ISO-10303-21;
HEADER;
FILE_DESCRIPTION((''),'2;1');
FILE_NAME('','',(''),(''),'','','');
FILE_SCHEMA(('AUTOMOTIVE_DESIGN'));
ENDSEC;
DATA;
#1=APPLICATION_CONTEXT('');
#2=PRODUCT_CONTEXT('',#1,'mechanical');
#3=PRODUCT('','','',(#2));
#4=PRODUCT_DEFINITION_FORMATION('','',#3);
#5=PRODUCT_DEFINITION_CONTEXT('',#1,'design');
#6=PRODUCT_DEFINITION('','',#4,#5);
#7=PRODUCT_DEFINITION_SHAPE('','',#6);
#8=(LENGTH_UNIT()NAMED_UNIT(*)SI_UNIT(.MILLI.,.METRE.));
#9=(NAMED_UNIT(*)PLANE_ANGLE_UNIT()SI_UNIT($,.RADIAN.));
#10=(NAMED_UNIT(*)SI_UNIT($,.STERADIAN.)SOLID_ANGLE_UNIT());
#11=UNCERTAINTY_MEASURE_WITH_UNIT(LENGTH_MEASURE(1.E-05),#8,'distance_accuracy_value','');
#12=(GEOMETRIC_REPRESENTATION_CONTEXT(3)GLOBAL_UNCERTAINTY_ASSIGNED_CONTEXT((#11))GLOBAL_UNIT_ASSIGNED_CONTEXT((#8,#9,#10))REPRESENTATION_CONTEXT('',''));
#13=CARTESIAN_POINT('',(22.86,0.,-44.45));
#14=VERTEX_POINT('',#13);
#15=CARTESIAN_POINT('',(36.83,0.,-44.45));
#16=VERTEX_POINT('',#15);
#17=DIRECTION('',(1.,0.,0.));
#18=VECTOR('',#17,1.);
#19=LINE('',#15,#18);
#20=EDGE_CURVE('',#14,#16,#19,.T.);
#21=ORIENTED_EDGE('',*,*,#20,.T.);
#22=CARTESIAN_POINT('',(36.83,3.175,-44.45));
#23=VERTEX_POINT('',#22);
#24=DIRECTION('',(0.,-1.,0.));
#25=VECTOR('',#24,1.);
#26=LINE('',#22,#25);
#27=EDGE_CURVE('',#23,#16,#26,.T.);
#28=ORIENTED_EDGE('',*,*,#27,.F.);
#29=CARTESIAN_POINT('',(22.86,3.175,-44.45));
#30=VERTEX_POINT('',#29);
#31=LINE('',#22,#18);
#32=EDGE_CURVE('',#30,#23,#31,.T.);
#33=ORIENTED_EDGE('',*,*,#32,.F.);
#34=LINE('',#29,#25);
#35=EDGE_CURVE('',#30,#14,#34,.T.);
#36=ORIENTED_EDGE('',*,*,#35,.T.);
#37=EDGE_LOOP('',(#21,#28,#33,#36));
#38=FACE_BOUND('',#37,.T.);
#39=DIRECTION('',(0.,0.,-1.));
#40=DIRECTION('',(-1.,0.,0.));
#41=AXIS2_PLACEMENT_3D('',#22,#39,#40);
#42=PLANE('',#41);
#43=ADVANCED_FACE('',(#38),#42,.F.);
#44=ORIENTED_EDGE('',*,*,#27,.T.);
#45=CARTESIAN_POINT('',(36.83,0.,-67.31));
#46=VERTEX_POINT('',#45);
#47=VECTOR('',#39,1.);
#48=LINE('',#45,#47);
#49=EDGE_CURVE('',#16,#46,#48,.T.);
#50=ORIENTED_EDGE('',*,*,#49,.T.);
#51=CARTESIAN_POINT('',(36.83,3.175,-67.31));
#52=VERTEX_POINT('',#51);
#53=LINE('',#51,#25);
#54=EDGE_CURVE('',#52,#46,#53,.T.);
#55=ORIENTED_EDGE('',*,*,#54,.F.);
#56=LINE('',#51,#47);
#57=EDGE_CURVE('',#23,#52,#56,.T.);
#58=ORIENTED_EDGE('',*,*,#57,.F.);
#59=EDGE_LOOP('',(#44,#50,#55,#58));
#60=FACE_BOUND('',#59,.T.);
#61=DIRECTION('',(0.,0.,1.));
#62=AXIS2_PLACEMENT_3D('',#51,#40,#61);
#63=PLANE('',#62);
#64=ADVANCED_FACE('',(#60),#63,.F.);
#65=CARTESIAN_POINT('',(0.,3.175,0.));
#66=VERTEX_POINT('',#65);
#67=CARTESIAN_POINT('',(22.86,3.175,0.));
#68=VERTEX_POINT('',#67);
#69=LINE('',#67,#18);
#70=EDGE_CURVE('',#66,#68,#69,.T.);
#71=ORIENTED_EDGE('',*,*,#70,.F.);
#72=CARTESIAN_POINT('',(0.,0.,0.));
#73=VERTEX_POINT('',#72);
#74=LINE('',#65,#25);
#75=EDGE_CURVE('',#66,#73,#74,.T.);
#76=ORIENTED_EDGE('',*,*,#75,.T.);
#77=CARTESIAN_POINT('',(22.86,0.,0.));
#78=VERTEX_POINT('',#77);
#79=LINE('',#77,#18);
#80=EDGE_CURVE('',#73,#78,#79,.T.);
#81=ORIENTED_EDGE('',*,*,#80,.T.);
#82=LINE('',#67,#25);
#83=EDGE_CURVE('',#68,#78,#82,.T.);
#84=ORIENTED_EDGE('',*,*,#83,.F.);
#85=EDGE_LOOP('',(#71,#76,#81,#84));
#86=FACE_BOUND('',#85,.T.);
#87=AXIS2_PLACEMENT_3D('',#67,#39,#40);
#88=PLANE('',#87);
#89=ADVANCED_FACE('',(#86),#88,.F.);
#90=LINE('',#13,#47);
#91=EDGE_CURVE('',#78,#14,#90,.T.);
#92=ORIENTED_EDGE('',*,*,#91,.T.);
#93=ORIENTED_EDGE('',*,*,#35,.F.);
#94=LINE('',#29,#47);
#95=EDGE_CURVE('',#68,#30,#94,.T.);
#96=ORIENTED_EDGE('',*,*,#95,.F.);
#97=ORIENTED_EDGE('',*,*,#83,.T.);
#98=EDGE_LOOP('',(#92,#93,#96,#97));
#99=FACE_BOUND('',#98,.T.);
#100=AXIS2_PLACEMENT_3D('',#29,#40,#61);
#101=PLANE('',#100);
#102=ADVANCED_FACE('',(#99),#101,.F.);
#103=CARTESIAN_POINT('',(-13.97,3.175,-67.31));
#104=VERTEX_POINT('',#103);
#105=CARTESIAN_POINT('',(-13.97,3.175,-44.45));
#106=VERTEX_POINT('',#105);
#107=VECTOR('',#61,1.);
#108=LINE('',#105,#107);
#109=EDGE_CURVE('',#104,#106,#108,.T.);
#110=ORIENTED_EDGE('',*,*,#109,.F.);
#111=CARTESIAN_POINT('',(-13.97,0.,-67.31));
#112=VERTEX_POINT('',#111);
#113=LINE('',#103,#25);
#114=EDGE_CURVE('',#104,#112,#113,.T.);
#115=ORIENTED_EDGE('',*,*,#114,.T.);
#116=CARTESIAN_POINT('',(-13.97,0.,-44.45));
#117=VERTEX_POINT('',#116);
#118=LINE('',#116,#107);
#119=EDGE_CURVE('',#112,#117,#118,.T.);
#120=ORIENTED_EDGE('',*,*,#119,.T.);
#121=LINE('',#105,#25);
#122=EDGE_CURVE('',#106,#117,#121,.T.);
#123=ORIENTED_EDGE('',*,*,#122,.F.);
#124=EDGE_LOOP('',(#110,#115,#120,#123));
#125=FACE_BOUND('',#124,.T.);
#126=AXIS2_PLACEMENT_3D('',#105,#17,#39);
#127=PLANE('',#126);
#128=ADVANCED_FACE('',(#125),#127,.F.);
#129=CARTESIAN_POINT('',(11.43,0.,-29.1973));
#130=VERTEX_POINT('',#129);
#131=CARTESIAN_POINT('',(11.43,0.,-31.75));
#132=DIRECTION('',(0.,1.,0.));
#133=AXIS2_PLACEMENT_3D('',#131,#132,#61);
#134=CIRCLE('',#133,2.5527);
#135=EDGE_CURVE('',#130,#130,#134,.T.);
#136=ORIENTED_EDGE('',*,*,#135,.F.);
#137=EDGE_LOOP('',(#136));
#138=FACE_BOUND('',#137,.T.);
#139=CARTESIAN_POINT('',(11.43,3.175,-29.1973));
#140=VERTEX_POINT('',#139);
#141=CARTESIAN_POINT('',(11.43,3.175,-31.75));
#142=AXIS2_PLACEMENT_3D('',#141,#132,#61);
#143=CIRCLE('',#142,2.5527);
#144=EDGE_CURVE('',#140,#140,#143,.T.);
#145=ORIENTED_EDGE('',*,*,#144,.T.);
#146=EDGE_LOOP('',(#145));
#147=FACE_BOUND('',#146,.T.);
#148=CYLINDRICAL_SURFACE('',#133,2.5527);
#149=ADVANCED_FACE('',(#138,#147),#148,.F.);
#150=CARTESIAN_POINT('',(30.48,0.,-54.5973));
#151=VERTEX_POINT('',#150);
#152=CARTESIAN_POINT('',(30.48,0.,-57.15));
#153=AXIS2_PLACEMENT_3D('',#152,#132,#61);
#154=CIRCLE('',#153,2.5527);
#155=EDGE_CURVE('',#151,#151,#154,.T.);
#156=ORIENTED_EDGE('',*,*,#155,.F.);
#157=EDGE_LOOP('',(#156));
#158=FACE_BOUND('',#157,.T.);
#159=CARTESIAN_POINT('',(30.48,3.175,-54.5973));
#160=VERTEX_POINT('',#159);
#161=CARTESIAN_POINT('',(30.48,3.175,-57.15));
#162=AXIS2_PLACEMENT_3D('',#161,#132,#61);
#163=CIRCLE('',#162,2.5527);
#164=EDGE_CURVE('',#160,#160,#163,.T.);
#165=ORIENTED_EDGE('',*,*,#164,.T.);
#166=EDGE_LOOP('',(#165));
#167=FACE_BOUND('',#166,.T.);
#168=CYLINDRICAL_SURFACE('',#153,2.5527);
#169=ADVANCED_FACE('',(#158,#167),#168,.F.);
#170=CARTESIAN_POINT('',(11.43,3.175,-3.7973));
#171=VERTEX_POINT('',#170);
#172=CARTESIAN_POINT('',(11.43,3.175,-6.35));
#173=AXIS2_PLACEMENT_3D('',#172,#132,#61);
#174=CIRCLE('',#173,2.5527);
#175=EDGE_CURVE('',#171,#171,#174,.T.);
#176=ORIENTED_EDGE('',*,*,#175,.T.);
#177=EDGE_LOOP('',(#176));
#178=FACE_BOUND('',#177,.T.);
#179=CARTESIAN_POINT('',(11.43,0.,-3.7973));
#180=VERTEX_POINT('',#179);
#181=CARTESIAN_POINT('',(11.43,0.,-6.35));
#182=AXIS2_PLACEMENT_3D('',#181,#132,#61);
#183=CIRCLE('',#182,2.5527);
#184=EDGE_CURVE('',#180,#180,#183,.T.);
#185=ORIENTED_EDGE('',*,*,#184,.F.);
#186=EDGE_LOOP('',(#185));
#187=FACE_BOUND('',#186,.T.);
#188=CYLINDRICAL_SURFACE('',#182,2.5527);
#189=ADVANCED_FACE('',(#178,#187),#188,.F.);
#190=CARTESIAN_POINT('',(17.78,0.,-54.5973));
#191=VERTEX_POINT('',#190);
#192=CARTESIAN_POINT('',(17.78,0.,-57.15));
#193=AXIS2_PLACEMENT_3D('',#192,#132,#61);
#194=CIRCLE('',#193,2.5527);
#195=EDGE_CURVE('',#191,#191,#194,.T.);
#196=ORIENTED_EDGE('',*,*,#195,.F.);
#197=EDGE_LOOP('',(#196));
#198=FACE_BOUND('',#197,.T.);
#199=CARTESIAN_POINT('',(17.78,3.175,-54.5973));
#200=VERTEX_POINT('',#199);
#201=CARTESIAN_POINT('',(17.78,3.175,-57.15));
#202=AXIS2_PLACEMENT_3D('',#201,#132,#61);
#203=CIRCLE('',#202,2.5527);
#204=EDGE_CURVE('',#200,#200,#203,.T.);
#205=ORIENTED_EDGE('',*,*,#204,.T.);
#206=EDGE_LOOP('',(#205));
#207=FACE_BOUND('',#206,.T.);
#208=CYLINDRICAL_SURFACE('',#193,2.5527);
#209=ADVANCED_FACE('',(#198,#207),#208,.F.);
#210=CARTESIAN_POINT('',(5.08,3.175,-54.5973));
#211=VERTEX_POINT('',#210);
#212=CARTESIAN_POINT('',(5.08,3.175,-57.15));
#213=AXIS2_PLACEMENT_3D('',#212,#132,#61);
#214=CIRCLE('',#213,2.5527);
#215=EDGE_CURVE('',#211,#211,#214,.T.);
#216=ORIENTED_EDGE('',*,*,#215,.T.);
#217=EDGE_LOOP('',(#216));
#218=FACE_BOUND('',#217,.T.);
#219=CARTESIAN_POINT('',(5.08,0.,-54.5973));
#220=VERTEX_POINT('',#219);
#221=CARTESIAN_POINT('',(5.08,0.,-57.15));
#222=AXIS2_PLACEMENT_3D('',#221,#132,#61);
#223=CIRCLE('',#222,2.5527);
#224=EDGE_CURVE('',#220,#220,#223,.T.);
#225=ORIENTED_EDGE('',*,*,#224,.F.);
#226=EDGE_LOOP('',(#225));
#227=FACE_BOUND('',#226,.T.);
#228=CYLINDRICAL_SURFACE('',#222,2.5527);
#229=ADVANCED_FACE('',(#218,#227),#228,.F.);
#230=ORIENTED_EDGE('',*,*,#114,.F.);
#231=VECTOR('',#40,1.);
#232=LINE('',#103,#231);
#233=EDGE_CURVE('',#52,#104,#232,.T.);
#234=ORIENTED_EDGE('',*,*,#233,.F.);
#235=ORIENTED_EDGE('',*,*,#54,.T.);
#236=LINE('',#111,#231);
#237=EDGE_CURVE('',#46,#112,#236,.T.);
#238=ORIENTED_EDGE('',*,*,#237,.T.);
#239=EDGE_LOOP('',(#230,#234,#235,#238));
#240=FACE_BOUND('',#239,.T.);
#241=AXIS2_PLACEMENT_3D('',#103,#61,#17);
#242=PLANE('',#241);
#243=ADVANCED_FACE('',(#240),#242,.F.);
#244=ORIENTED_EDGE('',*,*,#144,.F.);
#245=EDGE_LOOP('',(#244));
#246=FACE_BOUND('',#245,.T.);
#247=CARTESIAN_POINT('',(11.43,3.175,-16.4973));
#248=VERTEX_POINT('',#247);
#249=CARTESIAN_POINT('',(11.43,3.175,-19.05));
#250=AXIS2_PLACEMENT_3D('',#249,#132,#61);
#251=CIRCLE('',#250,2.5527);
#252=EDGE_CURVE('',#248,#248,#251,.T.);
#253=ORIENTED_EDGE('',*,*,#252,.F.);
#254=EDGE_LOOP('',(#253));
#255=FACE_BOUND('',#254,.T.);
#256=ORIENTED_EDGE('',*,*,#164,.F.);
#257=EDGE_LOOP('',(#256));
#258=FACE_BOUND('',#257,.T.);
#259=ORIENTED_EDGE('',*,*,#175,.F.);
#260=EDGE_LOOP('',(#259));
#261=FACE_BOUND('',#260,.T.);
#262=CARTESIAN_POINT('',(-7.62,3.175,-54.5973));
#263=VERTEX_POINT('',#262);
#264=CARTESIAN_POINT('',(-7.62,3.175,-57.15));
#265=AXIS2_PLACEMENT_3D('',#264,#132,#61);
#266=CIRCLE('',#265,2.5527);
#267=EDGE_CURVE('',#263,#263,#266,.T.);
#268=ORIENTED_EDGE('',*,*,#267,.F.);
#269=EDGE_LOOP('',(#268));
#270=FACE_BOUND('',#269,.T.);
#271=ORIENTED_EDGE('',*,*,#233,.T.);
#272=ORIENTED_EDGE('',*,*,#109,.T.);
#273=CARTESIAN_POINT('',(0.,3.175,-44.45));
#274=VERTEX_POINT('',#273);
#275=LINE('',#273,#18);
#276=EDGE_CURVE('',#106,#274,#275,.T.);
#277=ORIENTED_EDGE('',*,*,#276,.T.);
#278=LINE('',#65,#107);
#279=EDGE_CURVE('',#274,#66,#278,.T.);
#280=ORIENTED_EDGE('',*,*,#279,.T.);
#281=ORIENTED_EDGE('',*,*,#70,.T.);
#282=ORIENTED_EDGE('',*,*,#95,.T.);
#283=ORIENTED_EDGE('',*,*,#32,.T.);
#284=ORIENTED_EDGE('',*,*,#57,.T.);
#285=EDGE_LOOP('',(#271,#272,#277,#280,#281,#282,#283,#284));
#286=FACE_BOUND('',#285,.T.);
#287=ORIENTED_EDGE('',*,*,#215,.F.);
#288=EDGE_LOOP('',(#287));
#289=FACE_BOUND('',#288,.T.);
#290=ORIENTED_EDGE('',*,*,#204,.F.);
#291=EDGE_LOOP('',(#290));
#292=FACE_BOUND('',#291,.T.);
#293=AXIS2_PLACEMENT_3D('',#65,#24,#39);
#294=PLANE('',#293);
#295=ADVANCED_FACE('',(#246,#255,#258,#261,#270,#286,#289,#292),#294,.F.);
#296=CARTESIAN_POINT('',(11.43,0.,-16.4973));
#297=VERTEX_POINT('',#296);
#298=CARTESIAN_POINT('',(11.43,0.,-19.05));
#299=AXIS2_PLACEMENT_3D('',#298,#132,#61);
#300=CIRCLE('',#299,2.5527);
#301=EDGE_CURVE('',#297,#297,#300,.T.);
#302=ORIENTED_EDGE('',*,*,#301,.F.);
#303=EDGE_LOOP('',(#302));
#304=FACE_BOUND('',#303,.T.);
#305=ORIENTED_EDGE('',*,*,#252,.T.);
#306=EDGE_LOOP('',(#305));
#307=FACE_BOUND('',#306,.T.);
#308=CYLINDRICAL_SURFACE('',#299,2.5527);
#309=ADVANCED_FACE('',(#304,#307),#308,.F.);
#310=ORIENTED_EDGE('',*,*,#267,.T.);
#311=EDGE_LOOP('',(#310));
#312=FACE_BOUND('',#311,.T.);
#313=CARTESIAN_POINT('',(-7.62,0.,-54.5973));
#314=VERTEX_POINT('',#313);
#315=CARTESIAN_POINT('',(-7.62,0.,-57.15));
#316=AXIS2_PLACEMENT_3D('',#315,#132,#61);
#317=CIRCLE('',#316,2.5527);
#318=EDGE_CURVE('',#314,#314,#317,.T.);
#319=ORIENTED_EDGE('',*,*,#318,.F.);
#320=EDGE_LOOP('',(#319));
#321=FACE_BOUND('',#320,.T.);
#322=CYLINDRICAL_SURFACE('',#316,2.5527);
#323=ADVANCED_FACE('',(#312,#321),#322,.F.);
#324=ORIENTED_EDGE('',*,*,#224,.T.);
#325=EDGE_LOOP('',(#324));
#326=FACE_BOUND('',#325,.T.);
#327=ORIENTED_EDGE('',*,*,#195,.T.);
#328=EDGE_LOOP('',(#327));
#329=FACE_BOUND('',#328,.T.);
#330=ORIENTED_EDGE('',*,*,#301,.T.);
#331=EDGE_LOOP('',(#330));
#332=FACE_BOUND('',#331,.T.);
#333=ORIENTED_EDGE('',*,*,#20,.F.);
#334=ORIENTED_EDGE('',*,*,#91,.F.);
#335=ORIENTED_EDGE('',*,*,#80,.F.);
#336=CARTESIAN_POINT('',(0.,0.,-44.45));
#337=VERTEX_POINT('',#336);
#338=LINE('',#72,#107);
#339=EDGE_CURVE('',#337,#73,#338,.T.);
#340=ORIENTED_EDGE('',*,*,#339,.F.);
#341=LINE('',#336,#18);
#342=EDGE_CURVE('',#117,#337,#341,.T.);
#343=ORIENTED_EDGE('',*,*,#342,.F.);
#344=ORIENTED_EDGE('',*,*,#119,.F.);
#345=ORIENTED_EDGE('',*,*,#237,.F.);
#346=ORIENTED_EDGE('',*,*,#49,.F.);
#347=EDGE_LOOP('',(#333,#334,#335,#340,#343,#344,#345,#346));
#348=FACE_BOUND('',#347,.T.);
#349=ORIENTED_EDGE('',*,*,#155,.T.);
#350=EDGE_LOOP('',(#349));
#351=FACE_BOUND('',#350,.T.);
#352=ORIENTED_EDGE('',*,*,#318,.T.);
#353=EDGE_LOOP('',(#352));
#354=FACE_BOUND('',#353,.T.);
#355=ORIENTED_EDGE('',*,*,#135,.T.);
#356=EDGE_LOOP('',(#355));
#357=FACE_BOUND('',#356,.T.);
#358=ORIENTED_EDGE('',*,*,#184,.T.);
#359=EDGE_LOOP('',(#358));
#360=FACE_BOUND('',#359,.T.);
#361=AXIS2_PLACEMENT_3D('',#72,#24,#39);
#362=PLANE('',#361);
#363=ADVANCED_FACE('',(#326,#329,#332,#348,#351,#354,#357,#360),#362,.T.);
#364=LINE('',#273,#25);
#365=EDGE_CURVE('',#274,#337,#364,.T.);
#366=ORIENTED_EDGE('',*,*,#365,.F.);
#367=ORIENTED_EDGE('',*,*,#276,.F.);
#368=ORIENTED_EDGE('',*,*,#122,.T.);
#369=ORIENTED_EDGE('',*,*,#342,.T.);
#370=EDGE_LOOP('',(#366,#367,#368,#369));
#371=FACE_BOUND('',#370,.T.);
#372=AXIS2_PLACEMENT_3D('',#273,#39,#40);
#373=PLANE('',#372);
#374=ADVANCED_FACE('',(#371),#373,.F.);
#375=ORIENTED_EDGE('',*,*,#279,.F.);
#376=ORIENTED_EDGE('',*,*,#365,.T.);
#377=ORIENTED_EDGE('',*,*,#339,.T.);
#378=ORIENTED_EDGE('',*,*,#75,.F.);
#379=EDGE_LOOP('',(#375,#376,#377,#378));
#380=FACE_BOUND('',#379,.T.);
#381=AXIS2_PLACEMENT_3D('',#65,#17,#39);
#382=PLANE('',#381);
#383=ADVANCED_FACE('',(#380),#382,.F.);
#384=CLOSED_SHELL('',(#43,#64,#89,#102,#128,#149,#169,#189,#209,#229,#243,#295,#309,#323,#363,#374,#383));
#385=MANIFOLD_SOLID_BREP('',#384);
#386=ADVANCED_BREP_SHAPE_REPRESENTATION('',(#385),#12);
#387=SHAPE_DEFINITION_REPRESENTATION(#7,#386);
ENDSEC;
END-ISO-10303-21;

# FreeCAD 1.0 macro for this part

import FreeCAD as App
import Part
import Sketcher
Q = App.Units.Quantity

doc = App.newDocument("Part")
body = doc.addObject("PartDesign::Body", "Body")

# Sketch on XZ plane
sketch1 = body.newObject("Sketcher::SketchObject", "Sketch")
sketch1.AttachmentSupport = (doc.getObject("XZ_Plane"), [""])
sketch1.MapMode = "FlatFace"
sketch1.addGeometry(Part.LineSegment(App.Vector(0, -44.45, 0), App.Vector(0, 0, 0)), False)
sketch1.addGeometry(Part.LineSegment(App.Vector(0, 0, 0), App.Vector(22.86, 0, 0)), False)
sketch1.addGeometry(Part.LineSegment(App.Vector(22.86, 0, 0), App.Vector(22.86, -44.45, 0)), False)
sketch1.addGeometry(Part.LineSegment(App.Vector(22.86, -44.45, 0), App.Vector(36.83, -44.45, 0)), False)
sketch1.addGeometry(Part.LineSegment(App.Vector(36.83, -44.45, 0), App.Vector(36.83, -67.31, 0)), False)
sketch1.addGeometry(Part.LineSegment(App.Vector(36.83, -67.31, 0), App.Vector(-13.97, -67.31, 0)), False)
sketch1.addGeometry(Part.LineSegment(App.Vector(-13.97, -67.31, 0), App.Vector(-13.97, -44.45, 0)), False)
sketch1.addGeometry(Part.LineSegment(App.Vector(-13.97, -44.45, 0), App.Vector(0, -44.45, 0)), False)
sketch1.addConstraint(Sketcher.Constraint("Coincident", 0, 2, 1, 1))
sketch1.addConstraint(Sketcher.Constraint("Coincident", 1, 2, 2, 1))
sketch1.addConstraint(Sketcher.Constraint("Coincident", 2, 2, 3, 1))
sketch1.addConstraint(Sketcher.Constraint("Coincident", 3, 2, 4, 1))
sketch1.addConstraint(Sketcher.Constraint("Coincident", 4, 2, 5, 1))
sketch1.addConstraint(Sketcher.Constraint("Coincident", 5, 2, 6, 1))
sketch1.addConstraint(Sketcher.Constraint("Coincident", 6, 2, 7, 1))
sketch1.addConstraint(Sketcher.Constraint("Coincident", 7, 2, 0, 1))
sketch1.addConstraint(Sketcher.Constraint("Vertical", 0))
sketch1.addConstraint(Sketcher.Constraint("Horizontal", 1))
sketch1.addConstraint(Sketcher.Constraint("Vertical", 2))
sketch1.addConstraint(Sketcher.Constraint("Horizontal", 3))
sketch1.addConstraint(Sketcher.Constraint("Vertical", 4))
sketch1.addConstraint(Sketcher.Constraint("Horizontal", 5))
sketch1.addConstraint(Sketcher.Constraint("Vertical", 6))
sketch1.addConstraint(Sketcher.Constraint("Horizontal", 7))
sketch1.addConstraint(Sketcher.Constraint("Coincident", 0, 2, -1, 1))
sketch1.addConstraint(Sketcher.Constraint("Horizontal", 3, 2, 6, 2))
sketch1.addConstraint(Sketcher.Constraint("Equal", 3, 7))
sketch1.addConstraint(Sketcher.Constraint("Equal", 1, 4))
sketch1.addConstraint(Sketcher.Constraint("DistanceX", 5, 2, 5, 1, Q("2 in")))
sketch1.addConstraint(Sketcher.Constraint("DistanceX", 1, 1, 1, 2, Q("0.9 in")))
sketch1.addConstraint(Sketcher.Constraint("DistanceY", 0, 1, 0, 2, Q("1.75 in")))
pad1 = body.newObject("PartDesign::Pad", "Pad")
pad1.Profile = sketch1
pad1.Length = Q("0.125 in")
pad1.Reversed = True

# Sketch on XZ plane
sketch2 = body.newObject("Sketcher::SketchObject", "Sketch001")
sketch2.AttachmentSupport = (doc.getObject("XZ_Plane"), [""])
sketch2.MapMode = "FlatFace"
sketch2.AttachmentOffset = App.Placement(App.Vector(0, 0, -0.125 * 25.4), App.Rotation())
sketch2.addGeometry(Part.Circle(App.Vector(-7.62, -57.15, 0), App.Vector(0, 0, 1), 2.5527), False)
sketch2.addGeometry(Part.Circle(App.Vector(5.08, -57.15, 0), App.Vector(0, 0, 1), 2.5527), False)
sketch2.addGeometry(Part.Circle(App.Vector(17.78, -57.15, 0), App.Vector(0, 0, 1), 2.5527), False)
sketch2.addGeometry(Part.Circle(App.Vector(30.48, -57.15, 0), App.Vector(0, 0, 1), 2.5527), False)
sketch2.addConstraint(Sketcher.Constraint("Equal", 0, 1))
sketch2.addConstraint(Sketcher.Constraint("Equal", 1, 2))
sketch2.addConstraint(Sketcher.Constraint("Equal", 2, 3))
sketch2.addConstraint(Sketcher.Constraint("Horizontal", 0, 3, 1, 3))
sketch2.addConstraint(Sketcher.Constraint("Horizontal", 1, 3, 2, 3))
sketch2.addConstraint(Sketcher.Constraint("Horizontal", 2, 3, 3, 3))
sketch2.addConstraint(Sketcher.Constraint("Diameter", 0, Q("0.201 in")))
sketch2.addConstraint(Sketcher.Constraint("DistanceX", 0, 3, 2, 3, Q("1 in")))
sketch2.addConstraint(Sketcher.Constraint("DistanceX", 1, 3, 3, 3, Q("1 in")))
sketch2.addConstraint(Sketcher.Constraint("DistanceX", 0, 3, -1, 1, Q("0.3 in")))
sketch2.addConstraint(Sketcher.Constraint("DistanceX", -1, 1, 1, 3, Q("0.2 in")))
sketch2.addConstraint(Sketcher.Constraint("DistanceY", 0, 3, -1, 1, Q("2.25 in")))
pocket1 = body.newObject("PartDesign::Pocket", "Pocket")
pocket1.Profile = sketch2
pocket1.Type = "ThroughAll"
pocket1.Reversed = True

# Sketch on XZ plane
sketch3 = body.newObject("Sketcher::SketchObject", "Sketch002")
sketch3.AttachmentSupport = (doc.getObject("XZ_Plane"), [""])
sketch3.MapMode = "FlatFace"
sketch3.AttachmentOffset = App.Placement(App.Vector(0, 0, -0.125 * 25.4), App.Rotation())
sketch3.addGeometry(Part.Circle(App.Vector(11.43, -31.75, 0), App.Vector(0, 0, 1), 2.5527), False)
sketch3.addGeometry(Part.Circle(App.Vector(11.43, -19.05, 0), App.Vector(0, 0, 1), 2.5527), False)
sketch3.addGeometry(Part.Circle(App.Vector(11.43, -6.35, 0), App.Vector(0, 0, 1), 2.5527), False)
sketch3.addConstraint(Sketcher.Constraint("Equal", 0, 1))
sketch3.addConstraint(Sketcher.Constraint("Equal", 1, 2))
sketch3.addConstraint(Sketcher.Constraint("Vertical", 0, 3, 1, 3))
sketch3.addConstraint(Sketcher.Constraint("Vertical", 1, 3, 2, 3))
sketch3.addConstraint(Sketcher.Constraint("Diameter", 0, Q("0.201 in")))
sketch3.addConstraint(Sketcher.Constraint("DistanceY", 0, 3, 2, 3, Q("1 in")))
sketch3.addConstraint(Sketcher.Constraint("DistanceY", 0, 3, 1, 3, Q("0.5 in")))
sketch3.addConstraint(Sketcher.Constraint("DistanceX", -1, 1, 0, 3, Q("0.45 in")))
sketch3.addConstraint(Sketcher.Constraint("DistanceY", 0, 3, -1, 1, Q("1.25 in")))
pocket2 = body.newObject("PartDesign::Pocket", "Pocket001")
pocket2.Profile = sketch3
pocket2.Type = "ThroughAll"
pocket2.Reversed = True

doc.recompute()
